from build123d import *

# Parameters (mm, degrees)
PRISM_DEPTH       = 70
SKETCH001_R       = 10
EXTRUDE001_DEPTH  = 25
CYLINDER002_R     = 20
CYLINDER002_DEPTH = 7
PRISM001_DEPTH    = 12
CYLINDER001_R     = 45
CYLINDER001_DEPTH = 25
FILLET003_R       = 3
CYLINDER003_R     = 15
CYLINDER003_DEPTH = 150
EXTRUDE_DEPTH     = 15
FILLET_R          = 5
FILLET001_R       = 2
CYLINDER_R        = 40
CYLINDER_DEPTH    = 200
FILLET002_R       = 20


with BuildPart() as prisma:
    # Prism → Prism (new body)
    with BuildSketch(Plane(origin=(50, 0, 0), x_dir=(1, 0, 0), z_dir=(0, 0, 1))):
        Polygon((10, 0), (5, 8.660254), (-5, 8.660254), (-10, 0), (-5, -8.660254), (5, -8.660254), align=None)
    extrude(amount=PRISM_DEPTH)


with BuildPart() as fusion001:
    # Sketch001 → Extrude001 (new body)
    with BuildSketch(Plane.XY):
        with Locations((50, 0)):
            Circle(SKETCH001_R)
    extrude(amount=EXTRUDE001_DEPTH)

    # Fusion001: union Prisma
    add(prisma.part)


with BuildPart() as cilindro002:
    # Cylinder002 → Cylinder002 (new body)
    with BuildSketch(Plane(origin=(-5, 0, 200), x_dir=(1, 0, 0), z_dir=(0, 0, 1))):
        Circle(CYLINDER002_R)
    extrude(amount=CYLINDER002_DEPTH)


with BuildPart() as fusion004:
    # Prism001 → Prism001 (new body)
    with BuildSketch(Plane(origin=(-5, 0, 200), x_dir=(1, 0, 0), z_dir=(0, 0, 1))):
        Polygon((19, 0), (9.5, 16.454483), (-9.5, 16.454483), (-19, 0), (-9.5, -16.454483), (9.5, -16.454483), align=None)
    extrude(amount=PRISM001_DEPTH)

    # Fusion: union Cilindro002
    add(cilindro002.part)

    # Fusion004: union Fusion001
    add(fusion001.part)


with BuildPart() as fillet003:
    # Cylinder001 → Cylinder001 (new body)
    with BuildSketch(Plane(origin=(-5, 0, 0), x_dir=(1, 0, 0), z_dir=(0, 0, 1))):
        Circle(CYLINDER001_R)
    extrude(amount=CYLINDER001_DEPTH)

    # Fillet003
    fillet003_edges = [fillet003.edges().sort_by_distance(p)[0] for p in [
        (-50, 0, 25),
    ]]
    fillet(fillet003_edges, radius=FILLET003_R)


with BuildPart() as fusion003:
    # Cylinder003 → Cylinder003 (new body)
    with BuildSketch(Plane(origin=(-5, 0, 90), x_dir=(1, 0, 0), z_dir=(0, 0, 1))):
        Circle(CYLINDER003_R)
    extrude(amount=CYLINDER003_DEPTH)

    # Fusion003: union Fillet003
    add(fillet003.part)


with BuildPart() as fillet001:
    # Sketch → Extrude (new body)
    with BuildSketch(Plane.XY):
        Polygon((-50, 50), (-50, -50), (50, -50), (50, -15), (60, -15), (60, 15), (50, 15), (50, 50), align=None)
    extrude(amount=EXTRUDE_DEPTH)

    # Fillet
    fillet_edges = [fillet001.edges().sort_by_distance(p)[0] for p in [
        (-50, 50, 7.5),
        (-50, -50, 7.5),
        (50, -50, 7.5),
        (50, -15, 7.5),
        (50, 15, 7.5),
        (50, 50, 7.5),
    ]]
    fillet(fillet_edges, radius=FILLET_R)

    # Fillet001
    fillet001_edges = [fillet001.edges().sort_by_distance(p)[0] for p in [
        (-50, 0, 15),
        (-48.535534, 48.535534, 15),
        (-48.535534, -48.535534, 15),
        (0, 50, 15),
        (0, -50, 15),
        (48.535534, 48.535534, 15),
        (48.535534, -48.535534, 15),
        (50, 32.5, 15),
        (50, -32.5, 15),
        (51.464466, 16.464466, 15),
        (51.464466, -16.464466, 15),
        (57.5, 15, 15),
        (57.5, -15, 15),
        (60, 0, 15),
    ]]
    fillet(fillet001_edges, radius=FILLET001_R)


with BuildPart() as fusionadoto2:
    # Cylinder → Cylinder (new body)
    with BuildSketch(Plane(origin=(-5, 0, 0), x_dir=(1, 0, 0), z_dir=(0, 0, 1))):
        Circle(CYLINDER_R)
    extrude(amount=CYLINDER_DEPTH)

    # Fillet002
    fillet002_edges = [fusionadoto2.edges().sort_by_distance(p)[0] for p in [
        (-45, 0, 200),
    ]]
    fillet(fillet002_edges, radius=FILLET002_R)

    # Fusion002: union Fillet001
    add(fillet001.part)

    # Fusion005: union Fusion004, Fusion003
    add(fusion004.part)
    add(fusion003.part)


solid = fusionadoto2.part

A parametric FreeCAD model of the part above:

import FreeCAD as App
import Part
import Sketcher
Q = App.Units.Quantity


def edges_at(feature, points):
    """Names of the edges that pass closest to the given points."""
    edges = feature.Shape.Edges
    near = lambda p: min(range(len(edges)), key=lambda i: edges[i].distToShape(Part.Vertex(*p))[0])
    return sorted({f"Edge{near(p) + 1}" for p in points})

doc = App.newDocument("Part")
body = doc.addObject("PartDesign::Body", "Body")

# Sketch on XY plane
sketch1 = body.newObject("Sketcher::SketchObject", "Sketch")
sketch1.AttachmentSupport = (doc.getObject("XY_Plane"), [""])
sketch1.MapMode = "FlatFace"
sketch1.addGeometry(Part.LineSegment(App.Vector(60, 0, 0), App.Vector(55, 8.660254, 0)), False)
sketch1.addGeometry(Part.LineSegment(App.Vector(55, 8.660254, 0), App.Vector(45, 8.660254, 0)), False)
sketch1.addGeometry(Part.LineSegment(App.Vector(45, 8.660254, 0), App.Vector(40, 0, 0)), False)
sketch1.addGeometry(Part.LineSegment(App.Vector(40, 0, 0), App.Vector(45, -8.660254, 0)), False)
sketch1.addGeometry(Part.LineSegment(App.Vector(45, -8.660254, 0), App.Vector(55, -8.660254, 0)), False)
sketch1.addGeometry(Part.LineSegment(App.Vector(55, -8.660254, 0), App.Vector(60, 0, 0)), False)
sketch1.addConstraint(Sketcher.Constraint("Coincident", 0, 2, 1, 1))
sketch1.addConstraint(Sketcher.Constraint("Coincident", 1, 2, 2, 1))
sketch1.addConstraint(Sketcher.Constraint("Coincident", 2, 2, 3, 1))
sketch1.addConstraint(Sketcher.Constraint("Coincident", 3, 2, 4, 1))
sketch1.addConstraint(Sketcher.Constraint("Coincident", 4, 2, 5, 1))
sketch1.addConstraint(Sketcher.Constraint("Coincident", 5, 2, 0, 1))
sketch1.addConstraint(Sketcher.Constraint("Horizontal", 1))
sketch1.addConstraint(Sketcher.Constraint("Horizontal", 4))
sketch1.addConstraint(Sketcher.Constraint("Symmetric", 1, 2, 3, 2, -1))
sketch1.addConstraint(Sketcher.Constraint("PointOnObject", 2, 2, -1))
sketch1.addConstraint(Sketcher.Constraint("PointOnObject", 5, 2, -1))
sketch1.addConstraint(Sketcher.Constraint("Parallel", 0, 3))
sketch1.addConstraint(Sketcher.Constraint("Parallel", 2, 5))
sketch1.addConstraint(Sketcher.Constraint("DistanceX", 1, 2, 1, 1, 10.0))
sketch1.addConstraint(Sketcher.Constraint("Angle", 0, Q("120 deg")))
sketch1.addConstraint(Sketcher.Constraint("Distance", 0, 10.0))
sketch1.addConstraint(Sketcher.Constraint("DistanceX", -1, 1, 0, 2, 55.0))
pad1 = body.newObject("PartDesign::Pad", "Pad")
pad1.Profile = sketch1
pad1.Length = 70
body2 = doc.addObject("PartDesign::Body", "Body001")

# Sketch on XY plane
sketch2 = body2.newObject("Sketcher::SketchObject", "Sketch001")
sketch2.AttachmentSupport = (doc.getObject("XY_Plane001"), [""])
sketch2.MapMode = "FlatFace"
sketch2.addGeometry(Part.Circle(App.Vector(50, 0, 0), App.Vector(0, 0, 1), 10), False)
sketch2.addConstraint(Sketcher.Constraint("PointOnObject", 0, 3, -1))
sketch2.addConstraint(Sketcher.Constraint("Diameter", 0, 20.0))
sketch2.addConstraint(Sketcher.Constraint("DistanceX", -1, 1, 0, 3, 50.0))
pad2 = body2.newObject("PartDesign::Pad", "Pad001")
pad2.Profile = sketch2
pad2.Length = 25
doc.recompute()

boolean = body2.newObject("PartDesign::Boolean", "Boolean")
boolean.Type = "Fuse"
boolean.addObjects([body])
body3 = doc.addObject("PartDesign::Body", "Body002")

# Sketch on XY plane
sketch3 = body3.newObject("Sketcher::SketchObject", "Sketch002")
sketch3.AttachmentSupport = (doc.getObject("XY_Plane002"), [""])
sketch3.MapMode = "FlatFace"
sketch3.AttachmentOffset = App.Placement(App.Vector(0, 0, 200), App.Rotation())
sketch3.addGeometry(Part.Circle(App.Vector(-5, 0, 0), App.Vector(0, 0, 1), 20), False)
sketch3.addConstraint(Sketcher.Constraint("PointOnObject", 0, 3, -1))
sketch3.addConstraint(Sketcher.Constraint("Diameter", 0, 40.0))
sketch3.addConstraint(Sketcher.Constraint("DistanceX", 0, 3, -1, 1, 5.0))
pad3 = body3.newObject("PartDesign::Pad", "Pad002")
pad3.Profile = sketch3
pad3.Length = 7
body4 = doc.addObject("PartDesign::Body", "Body003")
body4.AllowCompound = True

# Sketch on XY plane
sketch4 = body4.newObject("Sketcher::SketchObject", "Sketch003")
sketch4.AttachmentSupport = (doc.getObject("XY_Plane003"), [""])
sketch4.MapMode = "FlatFace"
sketch4.AttachmentOffset = App.Placement(App.Vector(0, 0, 200), App.Rotation())
sketch4.addGeometry(Part.LineSegment(App.Vector(14, 0, 0), App.Vector(4.5, 16.454483, 0)), False)
sketch4.addGeometry(Part.LineSegment(App.Vector(4.5, 16.454483, 0), App.Vector(-14.5, 16.454483, 0)), False)
sketch4.addGeometry(Part.LineSegment(App.Vector(-14.5, 16.454483, 0), App.Vector(-24, 0, 0)), False)
sketch4.addGeometry(Part.LineSegment(App.Vector(-24, 0, 0), App.Vector(-14.5, -16.454483, 0)), False)
sketch4.addGeometry(Part.LineSegment(App.Vector(-14.5, -16.454483, 0), App.Vector(4.5, -16.454483, 0)), False)
sketch4.addGeometry(Part.LineSegment(App.Vector(4.5, -16.454483, 0), App.Vector(14, 0, 0)), False)
sketch4.addConstraint(Sketcher.Constraint("Coincident", 0, 2, 1, 1))
sketch4.addConstraint(Sketcher.Constraint("Coincident", 1, 2, 2, 1))
sketch4.addConstraint(Sketcher.Constraint("Coincident", 2, 2, 3, 1))
sketch4.addConstraint(Sketcher.Constraint("Coincident", 3, 2, 4, 1))
sketch4.addConstraint(Sketcher.Constraint("Coincident", 4, 2, 5, 1))
sketch4.addConstraint(Sketcher.Constraint("Coincident", 5, 2, 0, 1))
sketch4.addConstraint(Sketcher.Constraint("Horizontal", 1))
sketch4.addConstraint(Sketcher.Constraint("Horizontal", 4))
sketch4.addConstraint(Sketcher.Constraint("Symmetric", 1, 2, 3, 2, -1))
sketch4.addConstraint(Sketcher.Constraint("PointOnObject", 2, 2, -1))
sketch4.addConstraint(Sketcher.Constraint("PointOnObject", 5, 2, -1))
sketch4.addConstraint(Sketcher.Constraint("Parallel", 0, 3))
sketch4.addConstraint(Sketcher.Constraint("Parallel", 2, 5))
sketch4.addConstraint(Sketcher.Constraint("DistanceX", 1, 2, 1, 1, 19.0))
sketch4.addConstraint(Sketcher.Constraint("Angle", 0, Q("120 deg")))
sketch4.addConstraint(Sketcher.Constraint("Distance", 0, 19.0))
sketch4.addConstraint(Sketcher.Constraint("DistanceX", 2, 2, -1, 1, 24.0))
pad4 = body4.newObject("PartDesign::Pad", "Pad003")
pad4.Profile = sketch4
pad4.Length = 12
doc.recompute()

boolean2 = body4.newObject("PartDesign::Boolean", "Boolean001")
boolean2.Type = "Fuse"
boolean2.addObjects([body3])
doc.recompute()

boolean3 = body4.newObject("PartDesign::Boolean", "Boolean002")
boolean3.Type = "Fuse"
boolean3.addObjects([body2])
body5 = doc.addObject("PartDesign::Body", "Body004")

# Sketch on XY plane
sketch5 = body5.newObject("Sketcher::SketchObject", "Sketch004")
sketch5.AttachmentSupport = (doc.getObject("XY_Plane004"), [""])
sketch5.MapMode = "FlatFace"
sketch5.addGeometry(Part.Circle(App.Vector(-5, 0, 0), App.Vector(0, 0, 1), 45), False)
sketch5.addConstraint(Sketcher.Constraint("PointOnObject", 0, 3, -1))
sketch5.addConstraint(Sketcher.Constraint("Diameter", 0, 90.0))
sketch5.addConstraint(Sketcher.Constraint("DistanceX", 0, 3, -1, 1, 5.0))
pad5 = body5.newObject("PartDesign::Pad", "Pad004")
pad5.Profile = sketch5
pad5.Length = 25
doc.recompute()

fillet = body5.newObject("PartDesign::Fillet", "Fillet")
fillet.Base = (pad5, edges_at(pad5, [(-50, 0, 25)]))
fillet.Radius = 3
body6 = doc.addObject("PartDesign::Body", "Body005")
body6.AllowCompound = True

# Sketch on XY plane
sketch6 = body6.newObject("Sketcher::SketchObject", "Sketch005")
sketch6.AttachmentSupport = (doc.getObject("XY_Plane005"), [""])
sketch6.MapMode = "FlatFace"
sketch6.AttachmentOffset = App.Placement(App.Vector(0, 0, 90), App.Rotation())
sketch6.addGeometry(Part.Circle(App.Vector(-5, 0, 0), App.Vector(0, 0, 1), 15), False)
sketch6.addConstraint(Sketcher.Constraint("PointOnObject", 0, 3, -1))
sketch6.addConstraint(Sketcher.Constraint("Diameter", 0, 30.0))
sketch6.addConstraint(Sketcher.Constraint("DistanceX", 0, 3, -1, 1, 5.0))
pad6 = body6.newObject("PartDesign::Pad", "Pad005")
pad6.Profile = sketch6
pad6.Length = 150
doc.recompute()

boolean4 = body6.newObject("PartDesign::Boolean", "Boolean003")
boolean4.Type = "Fuse"
boolean4.addObjects([body5])
body7 = doc.addObject("PartDesign::Body", "Body006")

# Sketch on XY plane
sketch7 = body7.newObject("Sketcher::SketchObject", "Sketch006")
sketch7.AttachmentSupport = (doc.getObject("XY_Plane006"), [""])
sketch7.MapMode = "FlatFace"
sketch7.addGeometry(Part.LineSegment(App.Vector(-50, 50, 0), App.Vector(-50, -50, 0)), False)
sketch7.addGeometry(Part.LineSegment(App.Vector(-50, -50, 0), App.Vector(50, -50, 0)), False)
sketch7.addGeometry(Part.LineSegment(App.Vector(50, -50, 0), App.Vector(50, -15, 0)), False)
sketch7.addGeometry(Part.LineSegment(App.Vector(50, -15, 0), App.Vector(60, -15, 0)), False)
sketch7.addGeometry(Part.LineSegment(App.Vector(60, -15, 0), App.Vector(60, 15, 0)), False)
sketch7.addGeometry(Part.LineSegment(App.Vector(60, 15, 0), App.Vector(50, 15, 0)), False)
sketch7.addGeometry(Part.LineSegment(App.Vector(50, 15, 0), App.Vector(50, 50, 0)), False)
sketch7.addGeometry(Part.LineSegment(App.Vector(50, 50, 0), App.Vector(-50, 50, 0)), False)
sketch7.addConstraint(Sketcher.Constraint("Coincident", 0, 2, 1, 1))
sketch7.addConstraint(Sketcher.Constraint("Coincident", 1, 2, 2, 1))
sketch7.addConstraint(Sketcher.Constraint("Coincident", 2, 2, 3, 1))
sketch7.addConstraint(Sketcher.Constraint("Coincident", 3, 2, 4, 1))
sketch7.addConstraint(Sketcher.Constraint("Coincident", 4, 2, 5, 1))
sketch7.addConstraint(Sketcher.Constraint("Coincident", 5, 2, 6, 1))
sketch7.addConstraint(Sketcher.Constraint("Coincident", 6, 2, 7, 1))
sketch7.addConstraint(Sketcher.Constraint("Coincident", 7, 2, 0, 1))
sketch7.addConstraint(Sketcher.Constraint("Vertical", 0))
sketch7.addConstraint(Sketcher.Constraint("Horizontal", 1))
sketch7.addConstraint(Sketcher.Constraint("Vertical", 2))
sketch7.addConstraint(Sketcher.Constraint("Horizontal", 3))
sketch7.addConstraint(Sketcher.Constraint("Vertical", 4))
sketch7.addConstraint(Sketcher.Constraint("Horizontal", 5))
sketch7.addConstraint(Sketcher.Constraint("Vertical", 6))
sketch7.addConstraint(Sketcher.Constraint("Horizontal", 7))
sketch7.addConstraint(Sketcher.Constraint("Symmetric", 0, 2, 6, 2, -1, 1))
sketch7.addConstraint(Sketcher.Constraint("Symmetric", 2, 2, 5, 2, -1))
sketch7.addConstraint(Sketcher.Constraint("Equal", 7, 0))
sketch7.addConstraint(Sketcher.Constraint("DistanceX", 1, 1, 1, 2, 100.0))
sketch7.addConstraint(Sketcher.Constraint("DistanceX", 3, 1, 3, 2, 10.0))
sketch7.addConstraint(Sketcher.Constraint("DistanceY", 2, 1, 2, 2, 35.0))
pad7 = body7.newObject("PartDesign::Pad", "Pad006")
pad7.Profile = sketch7
pad7.Length = 15
doc.recompute()

fillet2 = body7.newObject("PartDesign::Fillet", "Fillet001")
fillet2.Base = (pad7, edges_at(pad7, [
    (-50, 50, 7.5),
    (-50, -50, 7.5),
    (50, -50, 7.5),
    (50, -15, 7.5),
    (50, 15, 7.5),
    (50, 50, 7.5),
]))
fillet2.Radius = 5
doc.recompute()

fillet3 = body7.newObject("PartDesign::Fillet", "Fillet002")
fillet3.Base = (fillet2, edges_at(fillet2, [
    (-50, 0, 15),
    (-48.536, 48.536, 15),
    (-48.536, -48.536, 15),
    (0, 50, 15),
    (0, -50, 15),
    (48.536, 48.536, 15),
    (48.536, -48.536, 15),
    (50, 32.5, 15),
    (50, -32.5, 15),
    (51.464, 16.464, 15),
    (51.464, -16.464, 15),
    (57.5, 15, 15),
    (57.5, -15, 15),
    (60, 0, 15),
]))
fillet3.Radius = 2
body8 = doc.addObject("PartDesign::Body", "Body007")

# Sketch on XY plane
sketch8 = body8.newObject("Sketcher::SketchObject", "Sketch007")
sketch8.AttachmentSupport = (doc.getObject("XY_Plane007"), [""])
sketch8.MapMode = "FlatFace"
sketch8.addGeometry(Part.Circle(App.Vector(-5, 0, 0), App.Vector(0, 0, 1), 40), False)
sketch8.addConstraint(Sketcher.Constraint("PointOnObject", 0, 3, -1))
sketch8.addConstraint(Sketcher.Constraint("Diameter", 0, 80.0))
sketch8.addConstraint(Sketcher.Constraint("DistanceX", 0, 3, -1, 1, 5.0))
pad8 = body8.newObject("PartDesign::Pad", "Pad007")
pad8.Profile = sketch8
pad8.Length = 200
doc.recompute()

fillet4 = body8.newObject("PartDesign::Fillet", "Fillet003")
fillet4.Base = (pad8, edges_at(pad8, [(-45, 0, 200)]))
fillet4.Radius = 20
doc.recompute()

boolean5 = body8.newObject("PartDesign::Boolean", "Boolean004")
boolean5.Type = "Fuse"
boolean5.addObjects([body7])
doc.recompute()

boolean6 = body8.newObject("PartDesign::Boolean", "Boolean005")
boolean6.Type = "Fuse"
boolean6.addObjects([body4])
doc.recompute()

boolean7 = body8.newObject("PartDesign::Boolean", "Boolean006")
boolean7.Type = "Fuse"
boolean7.addObjects([body6])

doc.recompute()
